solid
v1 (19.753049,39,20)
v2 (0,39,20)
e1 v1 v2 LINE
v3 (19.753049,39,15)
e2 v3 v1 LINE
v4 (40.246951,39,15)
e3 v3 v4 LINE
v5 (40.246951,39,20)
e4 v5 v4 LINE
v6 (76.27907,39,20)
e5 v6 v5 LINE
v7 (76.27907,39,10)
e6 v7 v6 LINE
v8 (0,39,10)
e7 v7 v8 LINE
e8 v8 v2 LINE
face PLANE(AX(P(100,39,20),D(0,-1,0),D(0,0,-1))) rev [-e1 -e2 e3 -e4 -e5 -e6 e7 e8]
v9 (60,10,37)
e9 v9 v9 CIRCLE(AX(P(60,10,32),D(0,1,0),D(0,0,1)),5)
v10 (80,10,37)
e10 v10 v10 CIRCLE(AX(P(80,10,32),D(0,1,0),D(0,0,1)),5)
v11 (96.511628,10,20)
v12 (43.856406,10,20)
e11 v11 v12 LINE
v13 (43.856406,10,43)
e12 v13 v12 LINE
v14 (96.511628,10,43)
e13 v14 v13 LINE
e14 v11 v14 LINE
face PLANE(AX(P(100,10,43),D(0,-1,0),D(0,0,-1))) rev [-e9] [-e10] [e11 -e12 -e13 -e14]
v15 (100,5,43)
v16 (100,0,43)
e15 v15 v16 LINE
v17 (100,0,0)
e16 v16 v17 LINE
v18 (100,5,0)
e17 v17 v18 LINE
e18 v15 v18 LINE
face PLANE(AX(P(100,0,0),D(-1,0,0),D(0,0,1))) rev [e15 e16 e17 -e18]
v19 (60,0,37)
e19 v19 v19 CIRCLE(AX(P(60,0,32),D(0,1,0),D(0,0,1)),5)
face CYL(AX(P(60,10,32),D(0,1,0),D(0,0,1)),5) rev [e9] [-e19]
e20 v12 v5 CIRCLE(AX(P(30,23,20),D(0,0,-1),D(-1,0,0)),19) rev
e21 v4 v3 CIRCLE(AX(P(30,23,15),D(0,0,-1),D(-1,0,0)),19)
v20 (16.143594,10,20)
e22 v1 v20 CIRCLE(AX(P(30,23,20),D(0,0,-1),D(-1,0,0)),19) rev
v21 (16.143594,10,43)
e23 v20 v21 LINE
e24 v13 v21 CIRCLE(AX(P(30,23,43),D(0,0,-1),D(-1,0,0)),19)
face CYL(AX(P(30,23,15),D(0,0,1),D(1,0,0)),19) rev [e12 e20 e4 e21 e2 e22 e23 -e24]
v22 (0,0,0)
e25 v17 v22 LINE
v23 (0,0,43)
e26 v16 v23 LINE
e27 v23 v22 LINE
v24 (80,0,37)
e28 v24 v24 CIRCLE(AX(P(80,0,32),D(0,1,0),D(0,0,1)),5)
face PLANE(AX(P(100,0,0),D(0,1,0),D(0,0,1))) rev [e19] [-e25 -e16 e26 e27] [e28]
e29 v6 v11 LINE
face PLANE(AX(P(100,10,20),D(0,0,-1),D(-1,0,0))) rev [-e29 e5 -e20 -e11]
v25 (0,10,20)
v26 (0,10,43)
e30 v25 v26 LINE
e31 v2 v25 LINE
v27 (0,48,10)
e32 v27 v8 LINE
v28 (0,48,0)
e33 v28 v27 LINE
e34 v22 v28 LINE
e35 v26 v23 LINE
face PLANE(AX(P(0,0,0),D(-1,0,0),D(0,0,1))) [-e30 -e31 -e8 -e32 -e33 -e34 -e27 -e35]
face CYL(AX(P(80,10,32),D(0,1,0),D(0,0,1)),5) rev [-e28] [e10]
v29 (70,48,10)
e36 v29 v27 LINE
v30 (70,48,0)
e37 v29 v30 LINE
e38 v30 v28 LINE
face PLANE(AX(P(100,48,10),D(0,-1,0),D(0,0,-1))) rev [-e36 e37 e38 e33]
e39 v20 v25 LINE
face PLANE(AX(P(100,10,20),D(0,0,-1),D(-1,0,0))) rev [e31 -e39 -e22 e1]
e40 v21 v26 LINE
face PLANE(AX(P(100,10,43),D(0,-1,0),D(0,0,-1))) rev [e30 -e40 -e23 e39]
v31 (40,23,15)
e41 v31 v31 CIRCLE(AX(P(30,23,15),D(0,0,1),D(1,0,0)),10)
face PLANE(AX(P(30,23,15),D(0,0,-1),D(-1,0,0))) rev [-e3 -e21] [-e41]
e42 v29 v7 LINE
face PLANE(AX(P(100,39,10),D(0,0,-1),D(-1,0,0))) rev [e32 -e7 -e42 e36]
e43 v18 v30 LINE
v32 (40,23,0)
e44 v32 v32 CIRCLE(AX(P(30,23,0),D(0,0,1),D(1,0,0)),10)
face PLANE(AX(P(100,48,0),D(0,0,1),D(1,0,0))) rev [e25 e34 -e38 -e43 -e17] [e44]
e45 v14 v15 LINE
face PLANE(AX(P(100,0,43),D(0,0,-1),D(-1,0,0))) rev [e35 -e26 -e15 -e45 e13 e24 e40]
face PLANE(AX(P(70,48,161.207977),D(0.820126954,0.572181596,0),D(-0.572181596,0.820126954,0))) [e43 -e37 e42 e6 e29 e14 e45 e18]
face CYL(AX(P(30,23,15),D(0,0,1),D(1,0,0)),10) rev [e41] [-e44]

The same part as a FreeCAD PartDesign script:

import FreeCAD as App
import Part
import Sketcher

V = App.Vector
Q = App.Units.Quantity

doc = App.newDocument("Part")
params = doc.addObject("Spreadsheet::Sheet", "Params")
for row, (alias, value) in enumerate([
    ("sketch1_width", "48 mm"),
    ("sketch1_width2", "9 mm"),
    ("sketch1_width3", "29 mm"),
    ("sketch1_height", "23 mm"),
    ("pad1_length", "100 mm"),
    ("sketch3_diameter", "38 mm"),
    ("pocket2_length", "142.966382 mm"),
    ("pocket2_length2", "5 mm"),
    ("sketch4_diameter", "20 mm"),
    ("hole_diameter", "20 mm"),
    ("sketch5_diameter", "10 mm"),
    ("hole2_diameter", "10 mm"),
], start=1):
    params.set(f"A{row}", alias)
    params.set(f"B{row}", "=" + value)
    params.setAlias(f"B{row}", alias)

body = doc.addObject("PartDesign::Body", "Body")

sketch1 = doc.addObject("Sketcher::SketchObject", "Sketch")
body.addObject(sketch1)
sketch1.AttachmentSupport = (doc.YZ_Plane, [""])
sketch1.MapMode = "FlatFace"
sketch1.addGeometry([
    Part.LineSegment(V(0, 0, 0), V(48, 0, 0)),
    Part.LineSegment(V(48, 0, 0), V(48, 10, 0)),
    Part.LineSegment(V(48, 10, 0), V(39, 10, 0)),
    Part.LineSegment(V(39, 10, 0), V(39, 20, 0)),
    Part.LineSegment(V(39, 20, 0), V(10, 20, 0)),
    Part.LineSegment(V(10, 20, 0), V(10, 43, 0)),
    Part.LineSegment(V(10, 43, 0), V(0, 43, 0)),
    Part.LineSegment(V(0, 43, 0), V(0, 0, 0)),
], False)
sketch1.addConstraint([
    Sketcher.Constraint("Coincident", 0, 2, 1, 1),
    Sketcher.Constraint("Coincident", 1, 2, 2, 1),
    Sketcher.Constraint("Coincident", 2, 2, 3, 1),
    Sketcher.Constraint("Coincident", 3, 2, 4, 1),
    Sketcher.Constraint("Coincident", 4, 2, 5, 1),
    Sketcher.Constraint("Coincident", 5, 2, 6, 1),
    Sketcher.Constraint("Coincident", 6, 2, 7, 1),
    Sketcher.Constraint("Coincident", 7, 2, 0, 1),
    Sketcher.Constraint("Horizontal", 0),
    Sketcher.Constraint("Vertical", 1),
    Sketcher.Constraint("Horizontal", 2),
    Sketcher.Constraint("Vertical", 3),
    Sketcher.Constraint("Horizontal", 4),
    Sketcher.Constraint("Vertical", 5),
    Sketcher.Constraint("Horizontal", 6),
    Sketcher.Constraint("Vertical", 7),
    Sketcher.Constraint("Coincident", 7, 2, -1, 1),
    Sketcher.Constraint("Equal", 6, 1),
    Sketcher.Constraint("Equal", 1, 3),
    Sketcher.Constraint("DistanceX", 0, 1, 0, 2, Q("48 mm")),
    Sketcher.Constraint("DistanceX", 2, 2, 2, 1, Q("9 mm")),
    Sketcher.Constraint("DistanceX", 4, 2, 4, 1, Q("29 mm")),
    Sketcher.Constraint("DistanceY", 5, 1, 5, 2, Q("23 mm")),
])
sketch1.setExpression("Constraints[19]", "Params.sketch1_width")
sketch1.setExpression("Constraints[20]", "Params.sketch1_width2")
sketch1.setExpression("Constraints[21]", "Params.sketch1_width3")
sketch1.setExpression("Constraints[22]", "Params.sketch1_height")
pad1 = doc.addObject("PartDesign::Pad", "Pad")
body.addObject(pad1)
pad1.Profile = sketch1
pad1.setExpression("Length", "Params.pad1_length")

sketch2 = doc.addObject("Sketcher::SketchObject", "Sketch001")
body.addObject(sketch2)
sketch2.AttachmentSupport = (doc.XY_Plane, [""])
sketch2.MapMode = "FlatFace"
sketch2.addGeometry([
    Part.LineSegment(V(-60, 235, 0), V(70, 48, 0)),
    Part.LineSegment(V(70, 48, 0), V(100, 5, 0)),
    Part.LineSegment(V(100, 5, 0), V(230, -182, 0)),
    Part.LineSegment(V(230, -182, 0), V(604, 79, 0)),
    Part.LineSegment(V(604, 79, 0), V(313, 495, 0)),
    Part.LineSegment(V(313, 495, 0), V(-60, 235, 0)),
], False)
sketch2.addConstraint([
    Sketcher.Constraint("Coincident", 0, 2, 1, 1),
    Sketcher.Constraint("Coincident", 1, 2, 2, 1),
    Sketcher.Constraint("Coincident", 2, 2, 3, 1),
    Sketcher.Constraint("Coincident", 3, 2, 4, 1),
    Sketcher.Constraint("Coincident", 4, 2, 5, 1),
    Sketcher.Constraint("Coincident", 5, 2, 0, 1),
    Sketcher.Constraint("Parallel", 0, 1),
    Sketcher.Constraint("Parallel", 1, 2),
    Sketcher.Constraint("Perpendicular", 2, 3),
    Sketcher.Constraint("Perpendicular", 3, 4),
    Sketcher.Constraint("Perpendicular", 4, 5),
    Sketcher.Constraint("Equal", 0, 2),
    Sketcher.Constraint("DistanceX", -1, 1, 0, 2, Q("70 mm")),
    Sketcher.Constraint("DistanceY", -1, 1, 0, 2, Q("48 mm")),
    Sketcher.Constraint("DistanceX", -1, 1, 1, 2, Q("100 mm")),
    Sketcher.Constraint("DistanceY", -1, 1, 1, 2, Q("5 mm")),
    Sketcher.Constraint("Distance", 3, Q("455.412448 mm")),
    Sketcher.Constraint("DistanceX", -1, 1, 2, 2, Q("230.289311 mm")),
])
pocket1 = doc.addObject("PartDesign::Pocket", "Pocket")
body.addObject(pocket1)
pocket1.Profile = sketch2
pocket1.Type = "ThroughAll"
pocket1.Midplane = True

sketch3 = doc.addObject("Sketcher::SketchObject", "Sketch002")
body.addObject(sketch3)
sketch3.AttachmentSupport = (doc.XY_Plane, [""])
sketch3.MapMode = "FlatFace"
sketch3.AttachmentOffset = App.Placement(V(0, 0, 20), App.Rotation())
sketch3.addGeometry(Part.Circle(V(30, 23, 0), V(0, 0, 1), 19), False)
sketch3.addConstraint([
    Sketcher.Constraint("Diameter", 0, Q("38 mm")),
    Sketcher.Constraint("DistanceX", -1, 1, 0, 3, Q("30 mm")),
    Sketcher.Constraint("DistanceY", -1, 1, 0, 3, Q("23 mm")),
])
sketch3.setExpression("Constraints[0]", "Params.sketch3_diameter")
pocket2 = doc.addObject("PartDesign::Pocket", "Pocket001")
body.addObject(pocket2)
pocket2.Profile = sketch3
pocket2.Type = "TwoLengths"
pocket2.setExpression("Length", "Params.pocket2_length")
pocket2.setExpression("Length2", "Params.pocket2_length2")
pocket2.Reversed = True

sketch4 = doc.addObject("Sketcher::SketchObject", "Sketch003")
body.addObject(sketch4)
sketch4.AttachmentSupport = (doc.XY_Plane, [""])
sketch4.MapMode = "FlatFace"
sketch4.AttachmentOffset = App.Placement(V(0, 0, 15), App.Rotation())
sketch4.addGeometry(Part.Circle(V(30, 23, 0), V(0, 0, 1), 10), False)
sketch4.addConstraint([
    Sketcher.Constraint("Diameter", 0, Q("20 mm")),
    Sketcher.Constraint("DistanceX", -1, 1, 0, 3, Q("30 mm")),
    Sketcher.Constraint("DistanceY", -1, 1, 0, 3, Q("23 mm")),
])
sketch4.setExpression("Constraints[0]", "Params.sketch4_diameter")
doc.recompute()
hole = doc.addObject("PartDesign::Hole", "Hole")
body.addObject(hole)
hole.Profile = sketch4
hole.ThreadType = "None"
hole.setExpression("Diameter", "Params.hole_diameter")
hole.DepthType = "ThroughAll"

sketch5 = doc.addObject("Sketcher::SketchObject", "Sketch004")
body.addObject(sketch5)
sketch5.AttachmentSupport = (doc.XZ_Plane, [""])
sketch5.MapMode = "FlatFace"
sketch5.AttachmentOffset = App.Placement(V(0, 0, -10), App.Rotation())
sketch5.addGeometry([
    Part.Circle(V(80, 32, 0), V(0, 0, 1), 5),
    Part.Circle(V(60, 32, 0), V(0, 0, 1), 5),
], False)
sketch5.addConstraint([
    Sketcher.Constraint("Equal", 0, 1),
    Sketcher.Constraint("Horizontal", 0, 3, 1, 3),
    Sketcher.Constraint("Diameter", 0, Q("10 mm")),
    Sketcher.Constraint("DistanceX", -1, 1, 0, 3, Q("80 mm")),
    Sketcher.Constraint("DistanceY", -1, 1, 0, 3, Q("32 mm")),
    Sketcher.Constraint("DistanceX", -1, 1, 1, 3, Q("60 mm")),
])
sketch5.setExpression("Constraints[2]", "Params.sketch5_diameter")
doc.recompute()
hole2 = doc.addObject("PartDesign::Hole", "Hole001")
body.addObject(hole2)
hole2.Profile = sketch5
hole2.ThreadType = "None"
hole2.setExpression("Diameter", "Params.hole2_diameter")
hole2.DepthType = "ThroughAll"
hole2.Reversed = True

doc.recompute()
